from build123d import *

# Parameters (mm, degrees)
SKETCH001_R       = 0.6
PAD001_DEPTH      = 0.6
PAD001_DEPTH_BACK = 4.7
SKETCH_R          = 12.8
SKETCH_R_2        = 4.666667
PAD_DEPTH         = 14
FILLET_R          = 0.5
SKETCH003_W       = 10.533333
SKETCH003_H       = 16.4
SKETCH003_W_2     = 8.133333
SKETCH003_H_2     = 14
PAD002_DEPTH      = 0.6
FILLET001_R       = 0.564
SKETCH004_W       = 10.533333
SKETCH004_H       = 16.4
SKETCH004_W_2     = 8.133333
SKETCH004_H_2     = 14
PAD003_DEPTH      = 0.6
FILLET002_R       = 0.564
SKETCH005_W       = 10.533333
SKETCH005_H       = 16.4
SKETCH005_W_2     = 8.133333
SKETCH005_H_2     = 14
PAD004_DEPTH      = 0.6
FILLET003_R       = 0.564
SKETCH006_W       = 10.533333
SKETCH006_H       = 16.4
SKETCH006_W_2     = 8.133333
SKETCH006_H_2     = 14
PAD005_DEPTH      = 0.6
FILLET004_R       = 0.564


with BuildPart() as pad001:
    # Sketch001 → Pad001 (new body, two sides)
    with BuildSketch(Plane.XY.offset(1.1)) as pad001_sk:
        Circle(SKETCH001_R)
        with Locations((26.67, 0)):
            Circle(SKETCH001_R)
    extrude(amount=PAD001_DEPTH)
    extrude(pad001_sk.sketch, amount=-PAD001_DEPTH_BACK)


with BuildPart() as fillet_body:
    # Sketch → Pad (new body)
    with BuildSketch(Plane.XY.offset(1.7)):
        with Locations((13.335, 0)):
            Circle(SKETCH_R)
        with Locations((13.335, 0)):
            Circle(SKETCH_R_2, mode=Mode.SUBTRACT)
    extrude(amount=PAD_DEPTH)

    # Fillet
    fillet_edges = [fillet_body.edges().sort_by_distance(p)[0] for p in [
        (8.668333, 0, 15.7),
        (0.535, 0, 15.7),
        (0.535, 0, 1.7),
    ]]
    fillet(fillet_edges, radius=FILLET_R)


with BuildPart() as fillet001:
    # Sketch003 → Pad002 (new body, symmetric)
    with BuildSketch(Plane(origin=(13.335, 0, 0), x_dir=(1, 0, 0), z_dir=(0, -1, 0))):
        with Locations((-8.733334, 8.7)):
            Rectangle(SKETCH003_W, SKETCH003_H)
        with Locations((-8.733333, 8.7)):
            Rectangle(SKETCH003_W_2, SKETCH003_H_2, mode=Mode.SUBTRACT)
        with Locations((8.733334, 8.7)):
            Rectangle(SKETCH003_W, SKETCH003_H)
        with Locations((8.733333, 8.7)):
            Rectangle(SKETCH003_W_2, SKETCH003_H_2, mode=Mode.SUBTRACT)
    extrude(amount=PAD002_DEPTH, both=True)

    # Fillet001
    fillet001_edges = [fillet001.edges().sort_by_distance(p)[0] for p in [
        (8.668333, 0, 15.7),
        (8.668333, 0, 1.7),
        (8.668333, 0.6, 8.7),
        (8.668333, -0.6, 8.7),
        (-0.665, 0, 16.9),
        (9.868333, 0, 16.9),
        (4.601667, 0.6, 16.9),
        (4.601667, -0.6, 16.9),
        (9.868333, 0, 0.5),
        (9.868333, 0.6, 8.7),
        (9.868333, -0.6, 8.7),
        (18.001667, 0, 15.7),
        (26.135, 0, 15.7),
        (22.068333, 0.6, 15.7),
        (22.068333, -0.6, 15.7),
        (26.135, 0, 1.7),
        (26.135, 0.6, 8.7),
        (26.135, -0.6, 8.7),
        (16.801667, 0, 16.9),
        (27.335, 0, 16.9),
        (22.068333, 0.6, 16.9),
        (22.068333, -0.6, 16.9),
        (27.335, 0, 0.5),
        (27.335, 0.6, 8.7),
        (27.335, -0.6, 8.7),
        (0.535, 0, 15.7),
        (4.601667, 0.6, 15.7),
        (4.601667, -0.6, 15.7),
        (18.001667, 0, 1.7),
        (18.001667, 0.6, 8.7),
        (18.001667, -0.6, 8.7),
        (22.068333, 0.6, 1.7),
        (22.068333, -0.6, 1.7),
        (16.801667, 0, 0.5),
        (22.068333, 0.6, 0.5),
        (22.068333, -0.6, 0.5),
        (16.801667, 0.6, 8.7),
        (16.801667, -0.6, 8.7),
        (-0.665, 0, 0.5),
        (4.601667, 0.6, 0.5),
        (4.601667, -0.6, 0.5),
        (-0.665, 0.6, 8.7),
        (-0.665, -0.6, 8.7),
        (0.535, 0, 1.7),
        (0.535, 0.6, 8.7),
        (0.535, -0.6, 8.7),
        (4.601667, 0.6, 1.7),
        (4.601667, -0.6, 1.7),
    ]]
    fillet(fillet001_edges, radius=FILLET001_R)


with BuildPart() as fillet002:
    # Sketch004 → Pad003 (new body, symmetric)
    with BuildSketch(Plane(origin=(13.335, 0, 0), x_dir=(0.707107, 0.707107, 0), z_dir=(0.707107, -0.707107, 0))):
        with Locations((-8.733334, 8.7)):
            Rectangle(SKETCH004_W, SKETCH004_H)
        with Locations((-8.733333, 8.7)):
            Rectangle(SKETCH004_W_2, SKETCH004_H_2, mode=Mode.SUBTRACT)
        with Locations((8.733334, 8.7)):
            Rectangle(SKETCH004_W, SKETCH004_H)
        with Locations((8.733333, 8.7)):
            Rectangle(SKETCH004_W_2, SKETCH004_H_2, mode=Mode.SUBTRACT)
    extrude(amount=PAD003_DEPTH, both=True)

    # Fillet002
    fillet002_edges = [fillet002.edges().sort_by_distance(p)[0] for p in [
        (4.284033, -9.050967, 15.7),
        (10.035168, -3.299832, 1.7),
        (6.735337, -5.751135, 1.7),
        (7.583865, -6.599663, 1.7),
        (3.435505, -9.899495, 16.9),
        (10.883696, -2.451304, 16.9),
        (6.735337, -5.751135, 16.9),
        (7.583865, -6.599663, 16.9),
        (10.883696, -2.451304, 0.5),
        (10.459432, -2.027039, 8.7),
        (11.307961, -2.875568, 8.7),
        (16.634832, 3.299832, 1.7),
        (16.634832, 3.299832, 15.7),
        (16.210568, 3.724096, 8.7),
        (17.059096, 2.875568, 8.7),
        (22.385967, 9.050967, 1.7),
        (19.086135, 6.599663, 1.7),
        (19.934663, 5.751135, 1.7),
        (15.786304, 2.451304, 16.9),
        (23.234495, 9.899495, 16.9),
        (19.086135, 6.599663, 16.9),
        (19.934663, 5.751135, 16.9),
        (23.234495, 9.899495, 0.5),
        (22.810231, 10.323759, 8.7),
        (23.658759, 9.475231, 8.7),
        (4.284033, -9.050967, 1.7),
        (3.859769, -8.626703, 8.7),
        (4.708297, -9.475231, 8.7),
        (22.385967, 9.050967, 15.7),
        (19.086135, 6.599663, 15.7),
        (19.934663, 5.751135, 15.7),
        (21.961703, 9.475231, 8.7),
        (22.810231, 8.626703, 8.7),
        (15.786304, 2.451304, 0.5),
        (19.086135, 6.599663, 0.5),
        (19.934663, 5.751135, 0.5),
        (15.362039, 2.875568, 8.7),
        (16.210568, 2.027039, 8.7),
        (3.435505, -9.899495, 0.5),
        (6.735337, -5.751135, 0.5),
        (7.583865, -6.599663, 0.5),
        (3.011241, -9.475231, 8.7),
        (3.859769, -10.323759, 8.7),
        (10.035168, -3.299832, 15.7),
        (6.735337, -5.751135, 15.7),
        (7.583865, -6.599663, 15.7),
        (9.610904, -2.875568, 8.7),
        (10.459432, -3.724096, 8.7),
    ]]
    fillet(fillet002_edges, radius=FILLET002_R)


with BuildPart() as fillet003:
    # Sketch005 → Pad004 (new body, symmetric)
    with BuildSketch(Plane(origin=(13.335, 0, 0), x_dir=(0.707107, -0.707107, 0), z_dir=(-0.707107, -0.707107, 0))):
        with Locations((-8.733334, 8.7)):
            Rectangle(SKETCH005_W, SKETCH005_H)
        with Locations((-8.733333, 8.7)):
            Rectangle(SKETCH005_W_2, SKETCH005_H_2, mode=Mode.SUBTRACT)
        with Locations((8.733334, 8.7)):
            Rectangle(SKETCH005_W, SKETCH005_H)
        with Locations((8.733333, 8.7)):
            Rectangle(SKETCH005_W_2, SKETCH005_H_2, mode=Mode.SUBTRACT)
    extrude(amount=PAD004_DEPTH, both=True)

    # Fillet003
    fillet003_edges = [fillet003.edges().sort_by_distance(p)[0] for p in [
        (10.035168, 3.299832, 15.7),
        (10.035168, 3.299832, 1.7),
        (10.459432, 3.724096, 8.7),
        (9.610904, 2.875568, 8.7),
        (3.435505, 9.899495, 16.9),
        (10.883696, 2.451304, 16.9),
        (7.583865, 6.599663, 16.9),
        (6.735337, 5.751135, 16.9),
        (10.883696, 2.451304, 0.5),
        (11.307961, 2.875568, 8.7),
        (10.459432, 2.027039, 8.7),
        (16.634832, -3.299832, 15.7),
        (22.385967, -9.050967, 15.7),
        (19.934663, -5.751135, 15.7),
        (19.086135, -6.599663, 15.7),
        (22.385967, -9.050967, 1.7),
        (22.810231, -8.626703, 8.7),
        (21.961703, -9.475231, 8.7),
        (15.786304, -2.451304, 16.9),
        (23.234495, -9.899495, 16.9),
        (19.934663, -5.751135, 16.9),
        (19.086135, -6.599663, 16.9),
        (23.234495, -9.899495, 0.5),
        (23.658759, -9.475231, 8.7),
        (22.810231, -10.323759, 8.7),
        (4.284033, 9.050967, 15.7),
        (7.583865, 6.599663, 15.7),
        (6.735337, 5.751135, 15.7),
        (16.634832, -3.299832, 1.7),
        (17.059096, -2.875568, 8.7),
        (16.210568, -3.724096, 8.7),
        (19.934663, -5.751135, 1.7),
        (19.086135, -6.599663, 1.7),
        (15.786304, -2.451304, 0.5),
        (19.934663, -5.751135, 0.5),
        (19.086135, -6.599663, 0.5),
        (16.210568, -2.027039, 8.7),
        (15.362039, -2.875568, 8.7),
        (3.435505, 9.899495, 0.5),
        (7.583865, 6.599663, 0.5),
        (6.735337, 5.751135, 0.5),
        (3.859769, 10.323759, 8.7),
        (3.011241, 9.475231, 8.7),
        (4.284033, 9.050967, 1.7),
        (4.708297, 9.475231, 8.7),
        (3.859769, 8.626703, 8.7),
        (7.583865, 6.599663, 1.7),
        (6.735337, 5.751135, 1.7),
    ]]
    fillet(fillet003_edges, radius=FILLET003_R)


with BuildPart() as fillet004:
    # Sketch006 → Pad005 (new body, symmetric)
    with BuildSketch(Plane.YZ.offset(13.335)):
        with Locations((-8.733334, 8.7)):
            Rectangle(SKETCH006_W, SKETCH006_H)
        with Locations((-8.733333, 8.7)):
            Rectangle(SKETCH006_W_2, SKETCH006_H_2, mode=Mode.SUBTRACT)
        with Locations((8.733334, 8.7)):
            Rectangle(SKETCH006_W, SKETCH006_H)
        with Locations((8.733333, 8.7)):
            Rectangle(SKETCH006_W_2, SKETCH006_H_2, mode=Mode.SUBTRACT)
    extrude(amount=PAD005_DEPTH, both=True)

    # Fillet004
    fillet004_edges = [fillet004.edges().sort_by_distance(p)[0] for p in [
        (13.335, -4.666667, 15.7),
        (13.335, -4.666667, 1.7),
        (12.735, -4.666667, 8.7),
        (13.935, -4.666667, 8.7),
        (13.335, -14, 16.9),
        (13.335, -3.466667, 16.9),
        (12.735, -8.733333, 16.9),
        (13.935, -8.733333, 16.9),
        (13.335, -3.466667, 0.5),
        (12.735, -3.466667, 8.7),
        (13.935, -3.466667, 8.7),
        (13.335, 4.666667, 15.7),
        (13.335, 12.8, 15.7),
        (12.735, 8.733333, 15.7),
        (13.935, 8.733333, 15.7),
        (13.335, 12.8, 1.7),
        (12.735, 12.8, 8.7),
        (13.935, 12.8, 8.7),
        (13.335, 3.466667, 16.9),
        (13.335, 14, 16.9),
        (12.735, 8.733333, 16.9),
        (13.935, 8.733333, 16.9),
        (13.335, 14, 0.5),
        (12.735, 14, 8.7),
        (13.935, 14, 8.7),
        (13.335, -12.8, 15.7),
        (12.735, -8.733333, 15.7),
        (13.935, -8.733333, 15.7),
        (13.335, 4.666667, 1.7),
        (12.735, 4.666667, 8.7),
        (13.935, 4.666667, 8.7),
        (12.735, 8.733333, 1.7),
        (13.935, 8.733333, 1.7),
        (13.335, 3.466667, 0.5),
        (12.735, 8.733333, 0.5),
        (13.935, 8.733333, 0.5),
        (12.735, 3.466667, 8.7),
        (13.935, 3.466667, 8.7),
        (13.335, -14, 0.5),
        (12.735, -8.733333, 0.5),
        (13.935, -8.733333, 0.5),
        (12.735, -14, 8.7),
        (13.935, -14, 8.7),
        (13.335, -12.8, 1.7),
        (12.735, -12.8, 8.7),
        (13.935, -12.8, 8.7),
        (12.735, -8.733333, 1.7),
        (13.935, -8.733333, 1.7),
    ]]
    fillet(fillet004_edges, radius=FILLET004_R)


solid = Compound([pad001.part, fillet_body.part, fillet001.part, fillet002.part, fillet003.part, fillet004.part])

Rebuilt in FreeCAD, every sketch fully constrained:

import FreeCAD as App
import Part
import Sketcher
from FreeCAD import Vector


def edges_at(feature, points):
    """Names of the edges that pass closest to the given points."""
    edges = feature.Shape.Edges
    near = lambda p: min(range(len(edges)), key=lambda i: edges[i].distToShape(Part.Vertex(*p))[0])
    return sorted({f"Edge{near(p) + 1}" for p in points})

doc = App.newDocument("Part")
body = doc.addObject("PartDesign::Body", "Body")
body.AllowCompound = True

# Sketch on XY plane
sketch1 = body.newObject("Sketcher::SketchObject", "Sketch")
sketch1.AttachmentSupport = (doc.getObject("XY_Plane"), [""])
sketch1.MapMode = "FlatFace"
sketch1.AttachmentOffset = App.Placement(Vector(0, 0, 1.1), App.Rotation())
sketch1.addGeometry([
    Part.Circle(Vector(0, 0, 0), Vector(0, 0, 1), 0.6),
    Part.Circle(Vector(26.7, 0, 0), Vector(0, 0, 1), 0.6),
], False)
sketch1.addConstraint([
    Sketcher.Constraint("Coincident", 0, 3, -1, 1),
    Sketcher.Constraint("Equal", 0, 1),
    Sketcher.Constraint("PointOnObject", 1, 3, -1),
    Sketcher.Constraint("Diameter", 0, 1.2),
    Sketcher.Constraint("DistanceX", -1, 1, 1, 3, 26.67),
])
pad1 = body.newObject("PartDesign::Pad", "Pad")
pad1.Profile = sketch1
pad1.Type = "TwoLengths"
pad1.Length = 0.6
pad1.Length2 = 4.7
body2 = doc.addObject("PartDesign::Body", "Body001")

# Sketch on XY plane
sketch2 = body2.newObject("Sketcher::SketchObject", "Sketch001")
sketch2.AttachmentSupport = (doc.getObject("XY_Plane001"), [""])
sketch2.MapMode = "FlatFace"
sketch2.AttachmentOffset = App.Placement(Vector(0, 0, 1.7), App.Rotation())
sketch2.addGeometry([
    Part.Circle(Vector(13.3, 0, 0), Vector(0, 0, 1), 12.8),
    Part.Circle(Vector(13.3, 0, 0), Vector(0, 0, 1), 4.7),
], False)
sketch2.addConstraint([
    Sketcher.Constraint("Coincident", 1, 3, 0, 3),
    Sketcher.Constraint("PointOnObject", 0, 3, -1),
    Sketcher.Constraint("Diameter", 0, 25.6),
    Sketcher.Constraint("Diameter", 1, 9.333334),
    Sketcher.Constraint("DistanceX", -1, 1, 0, 3, 13.335),
])
pad2 = body2.newObject("PartDesign::Pad", "Pad001")
pad2.Profile = sketch2
pad2.Length = 14
doc.recompute()

fillet = body2.newObject("PartDesign::Fillet", "Fillet")
fillet.Base = (pad2, edges_at(pad2, [(8.668, 0, 15.7), (0.535, 0, 15.7), (0.535, 0, 1.7)]))
fillet.Radius = 0.5
body3 = doc.addObject("PartDesign::Body", "Body002")
body3.AllowCompound = True

# Sketch on XZ plane
sketch3 = body3.newObject("Sketcher::SketchObject", "Sketch002")
sketch3.AttachmentSupport = (doc.getObject("XZ_Plane002"), [""])
sketch3.MapMode = "FlatFace"
sketch3.addGeometry([
    Part.LineSegment(Vector(-1, 17, 0), Vector(-1, 0, 0)),  # 0
    Part.LineSegment(Vector(-1, 0, 0), Vector(10, 0, 0)),  # 1
    Part.LineSegment(Vector(10, 0, 0), Vector(10, 17, 0)),  # 2
    Part.LineSegment(Vector(10, 17, 0), Vector(-1, 17, 0)),  # 3
    Part.LineSegment(Vector(9, 2, 0), Vector(1, 2, 0)),  # 4
    Part.LineSegment(Vector(1, 2, 0), Vector(1, 16, 0)),  # 5
    Part.LineSegment(Vector(1, 16, 0), Vector(9, 16, 0)),  # 6
    Part.LineSegment(Vector(9, 16, 0), Vector(9, 2, 0)),  # 7
    Part.LineSegment(Vector(17, 17, 0), Vector(17, 0, 0)),  # 8
    Part.LineSegment(Vector(17, 0, 0), Vector(27, 0, 0)),  # 9
    Part.LineSegment(Vector(27, 0, 0), Vector(27, 17, 0)),  # 10
    Part.LineSegment(Vector(27, 17, 0), Vector(17, 17, 0)),  # 11
    Part.LineSegment(Vector(26, 2, 0), Vector(18, 2, 0)),  # 12
    Part.LineSegment(Vector(18, 2, 0), Vector(18, 16, 0)),  # 13
    Part.LineSegment(Vector(18, 16, 0), Vector(26, 16, 0)),  # 14
    Part.LineSegment(Vector(26, 16, 0), Vector(26, 2, 0)),  # 15
], False)
sketch3.addConstraint([
    Sketcher.Constraint("Coincident", 0, 2, 1, 1),
    Sketcher.Constraint("Coincident", 1, 2, 2, 1),
    Sketcher.Constraint("Coincident", 2, 2, 3, 1),
    Sketcher.Constraint("Coincident", 3, 2, 0, 1),
    Sketcher.Constraint("Coincident", 4, 2, 5, 1),
    Sketcher.Constraint("Coincident", 5, 2, 6, 1),
    Sketcher.Constraint("Coincident", 6, 2, 7, 1),
    Sketcher.Constraint("Coincident", 7, 2, 4, 1),
    Sketcher.Constraint("Coincident", 8, 2, 9, 1),
    Sketcher.Constraint("Coincident", 9, 2, 10, 1),
    Sketcher.Constraint("Coincident", 10, 2, 11, 1),
    Sketcher.Constraint("Coincident", 11, 2, 8, 1),
    Sketcher.Constraint("Coincident", 12, 2, 13, 1),
    Sketcher.Constraint("Coincident", 13, 2, 14, 1),
    Sketcher.Constraint("Coincident", 14, 2, 15, 1),
    Sketcher.Constraint("Coincident", 15, 2, 12, 1),
    Sketcher.Constraint("Vertical", 0),
    Sketcher.Constraint("Horizontal", 1),
    Sketcher.Constraint("Vertical", 2),
    Sketcher.Constraint("Horizontal", 3),
    Sketcher.Constraint("Horizontal", 4),
    Sketcher.Constraint("Vertical", 5),
    Sketcher.Constraint("Horizontal", 6),
    Sketcher.Constraint("Vertical", 7),
    Sketcher.Constraint("Vertical", 8),
    Sketcher.Constraint("Horizontal", 9),
    Sketcher.Constraint("Vertical", 10),
    Sketcher.Constraint("Horizontal", 11),
    Sketcher.Constraint("Horizontal", 12),
    Sketcher.Constraint("Vertical", 13),
    Sketcher.Constraint("Horizontal", 14),
    Sketcher.Constraint("Vertical", 15),
    Sketcher.Constraint("Horizontal", 1, 2, 8, 2),
    Sketcher.Constraint("Horizontal", 3, 2, 10, 2),
    Sketcher.Constraint("Horizontal", 7, 2, 12, 2),
    Sketcher.Constraint("Horizontal", 6, 2, 13, 2),
    Sketcher.Constraint("Equal", 3, 9),
    Sketcher.Constraint("Equal", 6, 12),
    Sketcher.Constraint("DistanceY", 5, 1, 5, 2, 14.0),
    Sketcher.Constraint("DistanceY", 0, 2, 0, 1, 16.4),
    Sketcher.Constraint("DistanceY", -1, 1, 0, 2, 0.5),
    Sketcher.Constraint("DistanceY", -1, 1, 4, 2, 1.7),
    Sketcher.Constraint("DistanceX", 0, 2, 4, 2, 1.200001),
    Sketcher.Constraint("DistanceX", 6, 2, 2, 2, 1.199999),
    Sketcher.Constraint("DistanceX", 8, 2, 12, 2, 1.199999),
    Sketcher.Constraint("DistanceX", 0, 2, -1, 1, 0.665),
    Sketcher.Constraint("DistanceX", -1, 1, 9, 2, 27.335),
    Sketcher.Constraint("DistanceX", 1, 1, 1, 2, 10.533333),
])
pad3 = body3.newObject("PartDesign::Pad", "Pad002")
pad3.Profile = sketch3
pad3.Length = 1.2
pad3.Midplane = True
doc.recompute()

fillet2 = body3.newObject("PartDesign::Fillet", "Fillet001")
fillet2.Base = (pad3, ["Edge1"])
fillet2.UseAllEdges = True
fillet2.Radius = 0.564
body4 = doc.addObject("PartDesign::Body", "Body003")
body4.AllowCompound = True

# Sketch on an angled plane
sketch4 = body4.newObject("Sketcher::SketchObject", "Sketch003")
sketch4.Placement = App.Placement(Vector(13.335, 0, 0), App.Rotation(Vector(0.707106781, 0.707106781, 0), Vector(0, 0, 0.999999999), Vector(0.707106781, -0.707106781, 0), "ZXY"))
sketch4.addGeometry([
    Part.LineSegment(Vector(-14, 17, 0), Vector(-14, 0, 0)),  # 0
    Part.LineSegment(Vector(-14, 0, 0), Vector(-3, 0, 0)),  # 1
    Part.LineSegment(Vector(-3, 0, 0), Vector(-3, 17, 0)),  # 2
    Part.LineSegment(Vector(-3, 17, 0), Vector(-14, 17, 0)),  # 3
    Part.LineSegment(Vector(-5, 2, 0), Vector(-13, 2, 0)),  # 4
    Part.LineSegment(Vector(-13, 2, 0), Vector(-13, 16, 0)),  # 5
    Part.LineSegment(Vector(-13, 16, 0), Vector(-5, 16, 0)),  # 6
    Part.LineSegment(Vector(-5, 16, 0), Vector(-5, 2, 0)),  # 7
    Part.LineSegment(Vector(3, 17, 0), Vector(3, 0, 0)),  # 8
    Part.LineSegment(Vector(3, 0, 0), Vector(14, 0, 0)),  # 9
    Part.LineSegment(Vector(14, 0, 0), Vector(14, 17, 0)),  # 10
    Part.LineSegment(Vector(14, 17, 0), Vector(3, 17, 0)),  # 11
    Part.LineSegment(Vector(13, 2, 0), Vector(5, 2, 0)),  # 12
    Part.LineSegment(Vector(5, 2, 0), Vector(5, 16, 0)),  # 13
    Part.LineSegment(Vector(5, 16, 0), Vector(13, 16, 0)),  # 14
    Part.LineSegment(Vector(13, 16, 0), Vector(13, 2, 0)),  # 15
], False)
sketch4.addConstraint([
    Sketcher.Constraint("Coincident", 0, 2, 1, 1),
    Sketcher.Constraint("Coincident", 1, 2, 2, 1),
    Sketcher.Constraint("Coincident", 2, 2, 3, 1),
    Sketcher.Constraint("Coincident", 3, 2, 0, 1),
    Sketcher.Constraint("Coincident", 4, 2, 5, 1),
    Sketcher.Constraint("Coincident", 5, 2, 6, 1),
    Sketcher.Constraint("Coincident", 6, 2, 7, 1),
    Sketcher.Constraint("Coincident", 7, 2, 4, 1),
    Sketcher.Constraint("Coincident", 8, 2, 9, 1),
    Sketcher.Constraint("Coincident", 9, 2, 10, 1),
    Sketcher.Constraint("Coincident", 10, 2, 11, 1),
    Sketcher.Constraint("Coincident", 11, 2, 8, 1),
    Sketcher.Constraint("Coincident", 12, 2, 13, 1),
    Sketcher.Constraint("Coincident", 13, 2, 14, 1),
    Sketcher.Constraint("Coincident", 14, 2, 15, 1),
    Sketcher.Constraint("Coincident", 15, 2, 12, 1),
    Sketcher.Constraint("Vertical", 0),
    Sketcher.Constraint("Horizontal", 1),
    Sketcher.Constraint("Vertical", 2),
    Sketcher.Constraint("Horizontal", 3),
    Sketcher.Constraint("Horizontal", 4),
    Sketcher.Constraint("Vertical", 5),
    Sketcher.Constraint("Horizontal", 6),
    Sketcher.Constraint("Vertical", 7),
    Sketcher.Constraint("Vertical", 8),
    Sketcher.Constraint("Horizontal", 9),
    Sketcher.Constraint("Vertical", 10),
    Sketcher.Constraint("Horizontal", 11),
    Sketcher.Constraint("Horizontal", 12),
    Sketcher.Constraint("Vertical", 13),
    Sketcher.Constraint("Horizontal", 14),
    Sketcher.Constraint("Vertical", 15),
    Sketcher.Constraint("Symmetric", 1, 2, 8, 2, -2),
    Sketcher.Constraint("Symmetric", 3, 2, 10, 2, -2),
    Sketcher.Constraint("Symmetric", 7, 2, 12, 2, -2),
    Sketcher.Constraint("Symmetric", 5, 2, 14, 2, -2),
    Sketcher.Constraint("DistanceY", 5, 1, 5, 2, 14.0),
    Sketcher.Constraint("DistanceY", 0, 2, 0, 1, 16.4),
    Sketcher.Constraint("DistanceX", 0, 2, -1, 1, 14.0),
    Sketcher.Constraint("DistanceY", -1, 1, 0, 2, 0.5),
    Sketcher.Constraint("DistanceX", 4, 2, -1, 1, 12.799999),
    Sketcher.Constraint("DistanceY", -1, 1, 4, 2, 1.7),
    Sketcher.Constraint("DistanceX", 6, 2, 2, 2, 1.199999),
    Sketcher.Constraint("DistanceX", 1, 1, 1, 2, 10.533333),
])
pad4 = body4.newObject("PartDesign::Pad", "Pad003")
pad4.Profile = sketch4
pad4.Length = 1.2
pad4.Midplane = True
doc.recompute()

fillet3 = body4.newObject("PartDesign::Fillet", "Fillet002")
fillet3.Base = (pad4, ["Edge1"])
fillet3.UseAllEdges = True
fillet3.Radius = 0.564
body5 = doc.addObject("PartDesign::Body", "Body004")
body5.AllowCompound = True

# Sketch on an angled plane
sketch5 = body5.newObject("Sketcher::SketchObject", "Sketch004")
sketch5.Placement = App.Placement(Vector(13.335, 0, 0), App.Rotation(Vector(0.707106781, -0.707106781, 0), Vector(0, 0, 0.999999999), Vector(-0.707106781, -0.707106781, 0), "ZXY"))
sketch5.addGeometry([
    Part.LineSegment(Vector(-14, 17, 0), Vector(-14, 0, 0)),  # 0
    Part.LineSegment(Vector(-14, 0, 0), Vector(-3, 0, 0)),  # 1
    Part.LineSegment(Vector(-3, 0, 0), Vector(-3, 17, 0)),  # 2
    Part.LineSegment(Vector(-3, 17, 0), Vector(-14, 17, 0)),  # 3
    Part.LineSegment(Vector(-5, 2, 0), Vector(-13, 2, 0)),  # 4
    Part.LineSegment(Vector(-13, 2, 0), Vector(-13, 16, 0)),  # 5
    Part.LineSegment(Vector(-13, 16, 0), Vector(-5, 16, 0)),  # 6
    Part.LineSegment(Vector(-5, 16, 0), Vector(-5, 2, 0)),  # 7
    Part.LineSegment(Vector(3, 17, 0), Vector(3, 0, 0)),  # 8
    Part.LineSegment(Vector(3, 0, 0), Vector(14, 0, 0)),  # 9
    Part.LineSegment(Vector(14, 0, 0), Vector(14, 17, 0)),  # 10
    Part.LineSegment(Vector(14, 17, 0), Vector(3, 17, 0)),  # 11
    Part.LineSegment(Vector(13, 2, 0), Vector(5, 2, 0)),  # 12
    Part.LineSegment(Vector(5, 2, 0), Vector(5, 16, 0)),  # 13
    Part.LineSegment(Vector(5, 16, 0), Vector(13, 16, 0)),  # 14
    Part.LineSegment(Vector(13, 16, 0), Vector(13, 2, 0)),  # 15
], False)
sketch5.addConstraint([
    Sketcher.Constraint("Coincident", 0, 2, 1, 1),
    Sketcher.Constraint("Coincident", 1, 2, 2, 1),
    Sketcher.Constraint("Coincident", 2, 2, 3, 1),
    Sketcher.Constraint("Coincident", 3, 2, 0, 1),
    Sketcher.Constraint("Coincident", 4, 2, 5, 1),
    Sketcher.Constraint("Coincident", 5, 2, 6, 1),
    Sketcher.Constraint("Coincident", 6, 2, 7, 1),
    Sketcher.Constraint("Coincident", 7, 2, 4, 1),
    Sketcher.Constraint("Coincident", 8, 2, 9, 1),
    Sketcher.Constraint("Coincident", 9, 2, 10, 1),
    Sketcher.Constraint("Coincident", 10, 2, 11, 1),
    Sketcher.Constraint("Coincident", 11, 2, 8, 1),
    Sketcher.Constraint("Coincident", 12, 2, 13, 1),
    Sketcher.Constraint("Coincident", 13, 2, 14, 1),
    Sketcher.Constraint("Coincident", 14, 2, 15, 1),
    Sketcher.Constraint("Coincident", 15, 2, 12, 1),
    Sketcher.Constraint("Vertical", 0),
    Sketcher.Constraint("Horizontal", 1),
    Sketcher.Constraint("Vertical", 2),
    Sketcher.Constraint("Horizontal", 3),
    Sketcher.Constraint("Horizontal", 4),
    Sketcher.Constraint("Vertical", 5),
    Sketcher.Constraint("Horizontal", 6),
    Sketcher.Constraint("Vertical", 7),
    Sketcher.Constraint("Vertical", 8),
    Sketcher.Constraint("Horizontal", 9),
    Sketcher.Constraint("Vertical", 10),
    Sketcher.Constraint("Horizontal", 11),
    Sketcher.Constraint("Horizontal", 12),
    Sketcher.Constraint("Vertical", 13),
    Sketcher.Constraint("Horizontal", 14),
    Sketcher.Constraint("Vertical", 15),
    Sketcher.Constraint("Symmetric", 1, 2, 8, 2, -2),
    Sketcher.Constraint("Symmetric", 3, 2, 10, 2, -2),
    Sketcher.Constraint("Symmetric", 7, 2, 12, 2, -2),
    Sketcher.Constraint("Symmetric", 5, 2, 14, 2, -2),
    Sketcher.Constraint("DistanceY", 5, 1, 5, 2, 14.0),
    Sketcher.Constraint("DistanceY", 0, 2, 0, 1, 16.4),
    Sketcher.Constraint("DistanceX", 0, 2, -1, 1, 14.0),
    Sketcher.Constraint("DistanceY", -1, 1, 0, 2, 0.5),
    Sketcher.Constraint("DistanceX", 4, 2, -1, 1, 12.799999),
    Sketcher.Constraint("DistanceY", -1, 1, 4, 2, 1.7),
    Sketcher.Constraint("DistanceX", 6, 2, 2, 2, 1.199999),
    Sketcher.Constraint("DistanceX", 1, 1, 1, 2, 10.533333),
])
pad5 = body5.newObject("PartDesign::Pad", "Pad004")
pad5.Profile = sketch5
pad5.Length = 1.2
pad5.Midplane = True
doc.recompute()

fillet4 = body5.newObject("PartDesign::Fillet", "Fillet003")
fillet4.Base = (pad5, ["Edge1"])
fillet4.UseAllEdges = True
fillet4.Radius = 0.564
body6 = doc.addObject("PartDesign::Body", "Body005")
body6.AllowCompound = True

# Sketch on YZ plane
sketch6 = body6.newObject("Sketcher::SketchObject", "Sketch005")
sketch6.AttachmentSupport = (doc.getObject("YZ_Plane005"), [""])
sketch6.MapMode = "FlatFace"
sketch6.AttachmentOffset = App.Placement(Vector(0, 0, 13.335), App.Rotation())
sketch6.addGeometry([
    Part.LineSegment(Vector(-14, 17, 0), Vector(-14, 0, 0)),  # 0
    Part.LineSegment(Vector(-14, 0, 0), Vector(-3, 0, 0)),  # 1
    Part.LineSegment(Vector(-3, 0, 0), Vector(-3, 17, 0)),  # 2
    Part.LineSegment(Vector(-3, 17, 0), Vector(-14, 17, 0)),  # 3
    Part.LineSegment(Vector(-5, 2, 0), Vector(-13, 2, 0)),  # 4
    Part.LineSegment(Vector(-13, 2, 0), Vector(-13, 16, 0)),  # 5
    Part.LineSegment(Vector(-13, 16, 0), Vector(-5, 16, 0)),  # 6
    Part.LineSegment(Vector(-5, 16, 0), Vector(-5, 2, 0)),  # 7
    Part.LineSegment(Vector(3, 17, 0), Vector(3, 0, 0)),  # 8
    Part.LineSegment(Vector(3, 0, 0), Vector(14, 0, 0)),  # 9
    Part.LineSegment(Vector(14, 0, 0), Vector(14, 17, 0)),  # 10
    Part.LineSegment(Vector(14, 17, 0), Vector(3, 17, 0)),  # 11
    Part.LineSegment(Vector(13, 2, 0), Vector(5, 2, 0)),  # 12
    Part.LineSegment(Vector(5, 2, 0), Vector(5, 16, 0)),  # 13
    Part.LineSegment(Vector(5, 16, 0), Vector(13, 16, 0)),  # 14
    Part.LineSegment(Vector(13, 16, 0), Vector(13, 2, 0)),  # 15
], False)
sketch6.addConstraint([
    Sketcher.Constraint("Coincident", 0, 2, 1, 1),
    Sketcher.Constraint("Coincident", 1, 2, 2, 1),
    Sketcher.Constraint("Coincident", 2, 2, 3, 1),
    Sketcher.Constraint("Coincident", 3, 2, 0, 1),
    Sketcher.Constraint("Coincident", 4, 2, 5, 1),
    Sketcher.Constraint("Coincident", 5, 2, 6, 1),
    Sketcher.Constraint("Coincident", 6, 2, 7, 1),
    Sketcher.Constraint("Coincident", 7, 2, 4, 1),
    Sketcher.Constraint("Coincident", 8, 2, 9, 1),
    Sketcher.Constraint("Coincident", 9, 2, 10, 1),
    Sketcher.Constraint("Coincident", 10, 2, 11, 1),
    Sketcher.Constraint("Coincident", 11, 2, 8, 1),
    Sketcher.Constraint("Coincident", 12, 2, 13, 1),
    Sketcher.Constraint("Coincident", 13, 2, 14, 1),
    Sketcher.Constraint("Coincident", 14, 2, 15, 1),
    Sketcher.Constraint("Coincident", 15, 2, 12, 1),
    Sketcher.Constraint("Vertical", 0),
    Sketcher.Constraint("Horizontal", 1),
    Sketcher.Constraint("Vertical", 2),
    Sketcher.Constraint("Horizontal", 3),
    Sketcher.Constraint("Horizontal", 4),
    Sketcher.Constraint("Vertical", 5),
    Sketcher.Constraint("Horizontal", 6),
    Sketcher.Constraint("Vertical", 7),
    Sketcher.Constraint("Vertical", 8),
    Sketcher.Constraint("Horizontal", 9),
    Sketcher.Constraint("Vertical", 10),
    Sketcher.Constraint("Horizontal", 11),
    Sketcher.Constraint("Horizontal", 12),
    Sketcher.Constraint("Vertical", 13),
    Sketcher.Constraint("Horizontal", 14),
    Sketcher.Constraint("Vertical", 15),
    Sketcher.Constraint("Symmetric", 1, 2, 8, 2, -2),
    Sketcher.Constraint("Symmetric", 3, 2, 10, 2, -2),
    Sketcher.Constraint("Symmetric", 7, 2, 12, 2, -2),
    Sketcher.Constraint("Symmetric", 5, 2, 14, 2, -2),
    Sketcher.Constraint("DistanceY", 5, 1, 5, 2, 14.0),
    Sketcher.Constraint("DistanceY", 0, 2, 0, 1, 16.4),
    Sketcher.Constraint("DistanceX", 0, 2, -1, 1, 14.000001),
    Sketcher.Constraint("DistanceY", -1, 1, 0, 2, 0.5),
    Sketcher.Constraint("DistanceX", 4, 2, -1, 1, 12.8),
    Sketcher.Constraint("DistanceY", -1, 1, 4, 2, 1.7),
    Sketcher.Constraint("DistanceX", 6, 2, 2, 2, 1.199999),
    Sketcher.Constraint("DistanceX", 1, 1, 1, 2, 10.533333),
])
pad6 = body6.newObject("PartDesign::Pad", "Pad005")
pad6.Profile = sketch6
pad6.Length = 1.2
pad6.Midplane = True
doc.recompute()

fillet5 = body6.newObject("PartDesign::Fillet", "Fillet004")
fillet5.Base = (pad6, ["Edge1"])
fillet5.UseAllEdges = True
fillet5.Radius = 0.564

doc.recompute()
